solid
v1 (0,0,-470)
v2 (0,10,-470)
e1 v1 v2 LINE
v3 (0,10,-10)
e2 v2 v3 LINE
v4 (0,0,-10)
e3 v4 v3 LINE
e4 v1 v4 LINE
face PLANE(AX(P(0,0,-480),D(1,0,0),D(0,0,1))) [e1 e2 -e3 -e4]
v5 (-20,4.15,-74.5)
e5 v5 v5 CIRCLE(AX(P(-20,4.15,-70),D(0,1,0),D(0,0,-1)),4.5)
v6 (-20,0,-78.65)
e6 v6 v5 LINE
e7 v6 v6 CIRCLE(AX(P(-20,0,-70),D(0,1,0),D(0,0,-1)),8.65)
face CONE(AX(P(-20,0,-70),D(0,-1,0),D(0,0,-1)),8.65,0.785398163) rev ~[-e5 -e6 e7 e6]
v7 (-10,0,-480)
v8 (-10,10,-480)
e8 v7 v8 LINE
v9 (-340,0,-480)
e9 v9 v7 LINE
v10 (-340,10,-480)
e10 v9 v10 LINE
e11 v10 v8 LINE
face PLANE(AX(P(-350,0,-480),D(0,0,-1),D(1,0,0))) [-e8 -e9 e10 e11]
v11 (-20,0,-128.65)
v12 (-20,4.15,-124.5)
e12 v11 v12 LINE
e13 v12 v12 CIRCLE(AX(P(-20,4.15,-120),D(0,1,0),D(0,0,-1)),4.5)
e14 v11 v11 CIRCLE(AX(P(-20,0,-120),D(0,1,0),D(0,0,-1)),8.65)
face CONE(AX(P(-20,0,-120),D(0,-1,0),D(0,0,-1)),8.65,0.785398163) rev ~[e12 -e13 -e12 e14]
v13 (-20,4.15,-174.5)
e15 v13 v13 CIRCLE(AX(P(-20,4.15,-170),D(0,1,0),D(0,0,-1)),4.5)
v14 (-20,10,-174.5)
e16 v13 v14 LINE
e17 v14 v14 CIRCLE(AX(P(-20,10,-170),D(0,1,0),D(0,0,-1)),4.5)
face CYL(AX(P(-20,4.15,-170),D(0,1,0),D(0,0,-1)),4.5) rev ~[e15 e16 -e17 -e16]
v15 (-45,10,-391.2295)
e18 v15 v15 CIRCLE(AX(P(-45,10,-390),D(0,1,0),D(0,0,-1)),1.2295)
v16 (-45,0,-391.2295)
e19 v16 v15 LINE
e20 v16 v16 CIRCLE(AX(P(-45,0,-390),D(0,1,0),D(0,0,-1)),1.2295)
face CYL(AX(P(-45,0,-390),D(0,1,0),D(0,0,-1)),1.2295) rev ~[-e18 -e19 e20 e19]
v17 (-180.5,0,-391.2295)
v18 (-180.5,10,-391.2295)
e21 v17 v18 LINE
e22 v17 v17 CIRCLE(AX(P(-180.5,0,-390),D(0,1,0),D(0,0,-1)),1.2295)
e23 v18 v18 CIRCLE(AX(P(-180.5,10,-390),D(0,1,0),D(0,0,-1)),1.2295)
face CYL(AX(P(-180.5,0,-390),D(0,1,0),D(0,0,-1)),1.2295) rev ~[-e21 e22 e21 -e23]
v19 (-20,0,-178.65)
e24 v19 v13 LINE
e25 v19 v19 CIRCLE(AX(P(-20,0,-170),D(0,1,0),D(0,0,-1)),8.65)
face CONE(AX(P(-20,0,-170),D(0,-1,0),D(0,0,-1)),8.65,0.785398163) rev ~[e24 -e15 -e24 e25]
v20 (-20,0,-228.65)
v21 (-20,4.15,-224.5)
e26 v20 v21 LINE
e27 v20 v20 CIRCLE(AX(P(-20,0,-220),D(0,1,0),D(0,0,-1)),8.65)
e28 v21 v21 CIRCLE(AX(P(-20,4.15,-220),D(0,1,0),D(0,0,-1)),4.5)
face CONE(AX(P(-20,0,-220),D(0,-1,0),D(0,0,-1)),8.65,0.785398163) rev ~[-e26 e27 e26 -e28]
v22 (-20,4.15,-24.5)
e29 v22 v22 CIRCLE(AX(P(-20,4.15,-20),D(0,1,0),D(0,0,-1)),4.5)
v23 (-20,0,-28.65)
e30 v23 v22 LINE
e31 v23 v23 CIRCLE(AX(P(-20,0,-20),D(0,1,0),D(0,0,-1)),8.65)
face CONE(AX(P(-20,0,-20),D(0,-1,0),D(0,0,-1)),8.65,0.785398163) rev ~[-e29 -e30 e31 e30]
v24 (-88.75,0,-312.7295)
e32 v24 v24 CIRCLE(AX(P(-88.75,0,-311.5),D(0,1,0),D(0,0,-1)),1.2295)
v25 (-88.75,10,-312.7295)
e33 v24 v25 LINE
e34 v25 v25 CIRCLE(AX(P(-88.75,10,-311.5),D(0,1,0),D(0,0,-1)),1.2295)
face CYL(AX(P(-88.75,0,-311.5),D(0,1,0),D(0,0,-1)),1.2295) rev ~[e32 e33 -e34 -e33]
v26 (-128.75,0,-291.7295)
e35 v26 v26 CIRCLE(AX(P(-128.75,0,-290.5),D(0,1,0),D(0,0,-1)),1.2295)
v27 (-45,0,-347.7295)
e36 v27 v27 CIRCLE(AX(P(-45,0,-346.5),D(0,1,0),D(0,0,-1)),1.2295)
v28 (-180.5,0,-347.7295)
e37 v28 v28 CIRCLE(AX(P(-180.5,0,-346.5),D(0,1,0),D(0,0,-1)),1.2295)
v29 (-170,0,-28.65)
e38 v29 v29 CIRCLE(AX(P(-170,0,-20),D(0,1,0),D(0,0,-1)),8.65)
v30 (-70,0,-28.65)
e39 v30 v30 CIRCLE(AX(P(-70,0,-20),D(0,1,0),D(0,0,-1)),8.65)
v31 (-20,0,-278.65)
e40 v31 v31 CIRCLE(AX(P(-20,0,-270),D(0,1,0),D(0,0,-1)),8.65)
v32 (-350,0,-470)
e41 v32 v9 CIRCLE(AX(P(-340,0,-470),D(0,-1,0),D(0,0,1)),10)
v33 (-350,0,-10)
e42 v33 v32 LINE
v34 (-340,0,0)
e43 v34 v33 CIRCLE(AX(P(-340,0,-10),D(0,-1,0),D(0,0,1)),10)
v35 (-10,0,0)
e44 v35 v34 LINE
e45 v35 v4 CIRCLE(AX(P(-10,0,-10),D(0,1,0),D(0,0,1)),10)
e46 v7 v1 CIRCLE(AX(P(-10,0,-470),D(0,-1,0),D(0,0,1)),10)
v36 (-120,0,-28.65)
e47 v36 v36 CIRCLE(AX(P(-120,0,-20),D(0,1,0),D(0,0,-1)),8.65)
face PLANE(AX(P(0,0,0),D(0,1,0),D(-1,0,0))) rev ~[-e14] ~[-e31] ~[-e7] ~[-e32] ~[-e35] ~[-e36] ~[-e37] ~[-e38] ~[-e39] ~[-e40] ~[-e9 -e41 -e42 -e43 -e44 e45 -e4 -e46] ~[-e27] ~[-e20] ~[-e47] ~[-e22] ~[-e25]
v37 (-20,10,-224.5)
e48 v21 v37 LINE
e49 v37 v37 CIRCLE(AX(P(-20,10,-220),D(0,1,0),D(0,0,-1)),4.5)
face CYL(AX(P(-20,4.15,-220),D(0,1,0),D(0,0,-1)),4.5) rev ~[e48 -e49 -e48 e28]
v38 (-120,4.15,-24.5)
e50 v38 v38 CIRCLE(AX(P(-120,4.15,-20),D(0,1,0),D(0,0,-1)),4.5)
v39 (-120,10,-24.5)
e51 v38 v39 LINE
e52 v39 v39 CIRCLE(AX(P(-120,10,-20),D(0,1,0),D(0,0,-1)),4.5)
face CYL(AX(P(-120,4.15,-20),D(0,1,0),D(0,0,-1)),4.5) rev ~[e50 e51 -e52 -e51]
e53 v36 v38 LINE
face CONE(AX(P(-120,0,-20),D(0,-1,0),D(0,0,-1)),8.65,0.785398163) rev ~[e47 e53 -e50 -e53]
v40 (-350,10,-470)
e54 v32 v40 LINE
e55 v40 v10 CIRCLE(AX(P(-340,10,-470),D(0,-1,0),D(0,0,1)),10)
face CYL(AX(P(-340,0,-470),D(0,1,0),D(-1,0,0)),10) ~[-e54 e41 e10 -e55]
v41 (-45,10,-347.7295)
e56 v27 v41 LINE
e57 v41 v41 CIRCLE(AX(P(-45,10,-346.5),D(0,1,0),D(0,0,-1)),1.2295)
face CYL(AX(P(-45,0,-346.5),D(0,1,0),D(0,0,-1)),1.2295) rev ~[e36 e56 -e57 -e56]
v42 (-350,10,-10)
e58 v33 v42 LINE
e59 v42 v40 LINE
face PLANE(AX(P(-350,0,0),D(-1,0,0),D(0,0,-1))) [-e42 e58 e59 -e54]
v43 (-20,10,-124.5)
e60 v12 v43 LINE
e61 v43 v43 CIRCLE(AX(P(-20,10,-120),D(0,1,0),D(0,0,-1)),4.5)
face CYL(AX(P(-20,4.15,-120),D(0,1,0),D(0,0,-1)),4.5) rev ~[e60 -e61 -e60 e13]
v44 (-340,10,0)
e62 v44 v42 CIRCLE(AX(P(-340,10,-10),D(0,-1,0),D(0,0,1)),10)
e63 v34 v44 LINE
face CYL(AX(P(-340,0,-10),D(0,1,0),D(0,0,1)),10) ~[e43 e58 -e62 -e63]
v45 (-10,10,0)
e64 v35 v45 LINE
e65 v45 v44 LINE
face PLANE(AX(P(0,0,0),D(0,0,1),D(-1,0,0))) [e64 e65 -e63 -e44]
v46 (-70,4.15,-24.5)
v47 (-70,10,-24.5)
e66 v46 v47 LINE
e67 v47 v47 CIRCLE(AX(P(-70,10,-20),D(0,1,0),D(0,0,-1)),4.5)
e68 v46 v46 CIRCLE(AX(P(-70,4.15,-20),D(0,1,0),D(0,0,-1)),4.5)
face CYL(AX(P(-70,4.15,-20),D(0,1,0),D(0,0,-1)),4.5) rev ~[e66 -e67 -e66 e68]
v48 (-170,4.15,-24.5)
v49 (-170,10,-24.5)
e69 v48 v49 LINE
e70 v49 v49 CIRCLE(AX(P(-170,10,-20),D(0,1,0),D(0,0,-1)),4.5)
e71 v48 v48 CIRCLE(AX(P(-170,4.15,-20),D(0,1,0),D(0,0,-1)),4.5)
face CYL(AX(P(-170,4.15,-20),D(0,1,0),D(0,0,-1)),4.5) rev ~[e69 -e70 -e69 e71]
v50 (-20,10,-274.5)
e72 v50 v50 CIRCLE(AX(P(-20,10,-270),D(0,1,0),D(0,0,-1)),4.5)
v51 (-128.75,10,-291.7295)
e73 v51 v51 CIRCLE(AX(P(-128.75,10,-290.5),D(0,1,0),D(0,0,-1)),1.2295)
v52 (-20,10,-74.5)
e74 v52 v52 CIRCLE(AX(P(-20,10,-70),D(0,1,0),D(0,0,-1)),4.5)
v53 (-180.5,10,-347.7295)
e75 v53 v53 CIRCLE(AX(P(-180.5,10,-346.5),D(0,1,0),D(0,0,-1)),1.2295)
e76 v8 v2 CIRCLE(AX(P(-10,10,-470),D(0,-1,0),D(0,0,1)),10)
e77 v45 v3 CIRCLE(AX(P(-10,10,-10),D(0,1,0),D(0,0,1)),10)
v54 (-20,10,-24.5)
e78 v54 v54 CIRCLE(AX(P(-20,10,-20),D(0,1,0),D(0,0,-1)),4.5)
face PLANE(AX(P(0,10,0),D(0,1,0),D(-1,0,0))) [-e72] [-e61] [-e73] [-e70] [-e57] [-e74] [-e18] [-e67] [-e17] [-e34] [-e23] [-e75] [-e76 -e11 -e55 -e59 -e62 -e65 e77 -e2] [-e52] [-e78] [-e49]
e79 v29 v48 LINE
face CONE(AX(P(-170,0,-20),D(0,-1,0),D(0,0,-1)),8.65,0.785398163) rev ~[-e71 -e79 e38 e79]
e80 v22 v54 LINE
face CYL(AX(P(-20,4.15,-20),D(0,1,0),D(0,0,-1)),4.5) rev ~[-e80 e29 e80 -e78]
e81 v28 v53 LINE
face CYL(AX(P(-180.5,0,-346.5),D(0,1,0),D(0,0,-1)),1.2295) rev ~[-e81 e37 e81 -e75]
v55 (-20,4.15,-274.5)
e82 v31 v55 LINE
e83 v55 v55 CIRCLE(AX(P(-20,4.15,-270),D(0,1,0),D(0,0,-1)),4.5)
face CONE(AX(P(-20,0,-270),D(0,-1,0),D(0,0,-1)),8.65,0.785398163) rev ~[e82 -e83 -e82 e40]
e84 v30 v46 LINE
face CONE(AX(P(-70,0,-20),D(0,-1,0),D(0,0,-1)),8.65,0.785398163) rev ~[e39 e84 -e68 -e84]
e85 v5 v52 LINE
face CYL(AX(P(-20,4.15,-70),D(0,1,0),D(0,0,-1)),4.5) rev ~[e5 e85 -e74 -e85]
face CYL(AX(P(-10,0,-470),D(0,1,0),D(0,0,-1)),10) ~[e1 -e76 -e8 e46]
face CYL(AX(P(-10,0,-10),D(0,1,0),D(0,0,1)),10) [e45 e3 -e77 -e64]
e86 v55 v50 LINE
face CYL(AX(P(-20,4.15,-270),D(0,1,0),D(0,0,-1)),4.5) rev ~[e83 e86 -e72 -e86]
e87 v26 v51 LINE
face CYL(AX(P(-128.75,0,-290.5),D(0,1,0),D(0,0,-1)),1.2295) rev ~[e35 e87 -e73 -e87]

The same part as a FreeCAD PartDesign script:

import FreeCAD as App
import Part
import Sketcher


def edges_at(feature, points):
    """Names of the edges that pass closest to the given points."""
    edges = feature.Shape.Edges
    near = lambda p: min(range(len(edges)), key=lambda i: edges[i].distToShape(Part.Vertex(*p))[0])
    return sorted({f"Edge{near(p) + 1}" for p in points})


def add_polygon(sketch, points):
    """Adds a closed chain of lines whose ends are joined by coincident constraints."""
    first, n = sketch.GeometryCount, len(points)
    for a, b in zip(points, points[1:] + points[:1]):
        sketch.addGeometry(Part.LineSegment(App.Vector(*a, 0), App.Vector(*b, 0)), False)
    for i in range(n):
        sketch.addConstraint(Sketcher.Constraint("Coincident", first + i, 2, first + (i + 1) % n, 1))

doc = App.newDocument("Part")
body = doc.addObject("PartDesign::Body", "Body")

# Sketch on XZ plane
sketch1 = body.newObject("Sketcher::SketchObject", "Sketch")
sketch1.AttachmentSupport = (doc.getObject("XZ_Plane"), [""])
sketch1.MapMode = "FlatFace"
add_polygon(sketch1, [(-350, 0), (0, 0), (0, -480), (-350, -480)])  # lines 0-3
sketch1.addConstraint(Sketcher.Constraint("Horizontal", 0))
sketch1.addConstraint(Sketcher.Constraint("Vertical", 1))
sketch1.addConstraint(Sketcher.Constraint("Horizontal", 2))
sketch1.addConstraint(Sketcher.Constraint("Vertical", 3))
sketch1.addConstraint(Sketcher.Constraint("Coincident", 0, 2, -1, 1))
sketch1.addConstraint(Sketcher.Constraint("DistanceX", 0, 1, 0, 2, 350.0))
sketch1.addConstraint(Sketcher.Constraint("DistanceY", 1, 2, 1, 1, 480.0))
pad1 = body.newObject("PartDesign::Pad", "Pad")
pad1.Profile = sketch1
pad1.Length = 10
pad1.Reversed = True
doc.recompute()

fillet = body.newObject("PartDesign::Fillet", "Fillet")
fillet.Base = (pad1, edges_at(pad1, [
    (-350, 5, 0),
    (0, 5, 0),
    (0, 5, -480),
    (-350, 5, -480),
]))
fillet.Radius = 10

# Sketch on XZ plane
sketch2 = body.newObject("Sketcher::SketchObject", "Sketch001")
sketch2.AttachmentSupport = (doc.getObject("XZ_Plane"), [""])
sketch2.MapMode = "FlatFace"
sketch2.addGeometry(Part.Circle(App.Vector(-170, -20, 0), App.Vector(0, 0, 1), 4.5), False)
sketch2.addGeometry(Part.Circle(App.Vector(-120, -20, 0), App.Vector(0, 0, 1), 4.5), False)
sketch2.addGeometry(Part.Circle(App.Vector(-70, -20, 0), App.Vector(0, 0, 1), 4.5), False)
sketch2.addGeometry(Part.Circle(App.Vector(-20, -20, 0), App.Vector(0, 0, 1), 4.5), False)
sketch2.addGeometry(Part.Circle(App.Vector(-20, -70, 0), App.Vector(0, 0, 1), 4.5), False)
sketch2.addGeometry(Part.Circle(App.Vector(-20, -120, 0), App.Vector(0, 0, 1), 4.5), False)
sketch2.addGeometry(Part.Circle(App.Vector(-20, -170, 0), App.Vector(0, 0, 1), 4.5), False)
sketch2.addGeometry(Part.Circle(App.Vector(-20, -220, 0), App.Vector(0, 0, 1), 4.5), False)
sketch2.addGeometry(Part.Circle(App.Vector(-20, -270, 0), App.Vector(0, 0, 1), 4.5), False)
sketch2.addConstraint(Sketcher.Constraint("Equal", 0, 1))
sketch2.addConstraint(Sketcher.Constraint("Equal", 1, 2))
sketch2.addConstraint(Sketcher.Constraint("Equal", 2, 3))
sketch2.addConstraint(Sketcher.Constraint("Equal", 3, 4))
sketch2.addConstraint(Sketcher.Constraint("Equal", 4, 5))
sketch2.addConstraint(Sketcher.Constraint("Equal", 5, 6))
sketch2.addConstraint(Sketcher.Constraint("Equal", 6, 7))
sketch2.addConstraint(Sketcher.Constraint("Equal", 7, 8))
sketch2.addConstraint(Sketcher.Constraint("Horizontal", 0, 3, 1, 3))
sketch2.addConstraint(Sketcher.Constraint("Horizontal", 1, 3, 2, 3))
sketch2.addConstraint(Sketcher.Constraint("Horizontal", 2, 3, 3, 3))
sketch2.addConstraint(Sketcher.Constraint("Vertical", 3, 3, 4, 3))
sketch2.addConstraint(Sketcher.Constraint("Vertical", 4, 3, 5, 3))
sketch2.addConstraint(Sketcher.Constraint("Vertical", 5, 3, 6, 3))
sketch2.addConstraint(Sketcher.Constraint("Vertical", 6, 3, 7, 3))
sketch2.addConstraint(Sketcher.Constraint("Vertical", 7, 3, 8, 3))
sketch2.addConstraint(Sketcher.Constraint("Diameter", 0, 9.0))
sketch2.addConstraint(Sketcher.Constraint("DistanceX", 0, 3, -1, 1, 170.0))
sketch2.addConstraint(Sketcher.Constraint("DistanceY", 0, 3, -1, 1, 20.0))
sketch2.addConstraint(Sketcher.Constraint("DistanceX", 1, 3, -1, 1, 120.0))
sketch2.addConstraint(Sketcher.Constraint("DistanceX", 2, 3, -1, 1, 70.0))
sketch2.addConstraint(Sketcher.Constraint("DistanceX", 3, 3, -1, 1, 20.0))
sketch2.addConstraint(Sketcher.Constraint("DistanceY", 4, 3, -1, 1, 70.0))
sketch2.addConstraint(Sketcher.Constraint("DistanceY", 5, 3, -1, 1, 120.0))
sketch2.addConstraint(Sketcher.Constraint("DistanceY", 6, 3, -1, 1, 170.0))
sketch2.addConstraint(Sketcher.Constraint("DistanceY", 7, 3, -1, 1, 220.0))
sketch2.addConstraint(Sketcher.Constraint("DistanceY", 8, 3, -1, 1, 270.0))
doc.recompute()
hole = body.newObject("PartDesign::Hole", "Hole")
hole.Profile = sketch2
hole.ThreadType = "None"
hole.Diameter = 9
hole.DepthType = "ThroughAll"
hole.HoleCutType = "Countersink"
hole.HoleCutDiameter = 17.3
hole.HoleCutCountersinkAngle = 90

# Sketch on XZ plane
sketch3 = body.newObject("Sketcher::SketchObject", "Sketch002")
sketch3.AttachmentSupport = (doc.getObject("XZ_Plane"), [""])
sketch3.MapMode = "FlatFace"
sketch3.addGeometry(Part.Circle(App.Vector(-128.8, -290.5, 0), App.Vector(0, 0, 1), 1.2), False)
sketch3.addGeometry(Part.Circle(App.Vector(-88.8, -311.5, 0), App.Vector(0, 0, 1), 1.2), False)
sketch3.addGeometry(Part.Circle(App.Vector(-180.5, -346.5, 0), App.Vector(0, 0, 1), 1.2), False)
sketch3.addGeometry(Part.Circle(App.Vector(-180.5, -390, 0), App.Vector(0, 0, 1), 1.2), False)
sketch3.addGeometry(Part.Circle(App.Vector(-45, -346.5, 0), App.Vector(0, 0, 1), 1.2), False)
sketch3.addGeometry(Part.Circle(App.Vector(-45, -390, 0), App.Vector(0, 0, 1), 1.2), False)
sketch3.addConstraint(Sketcher.Constraint("Equal", 0, 1))
sketch3.addConstraint(Sketcher.Constraint("Equal", 1, 2))
sketch3.addConstraint(Sketcher.Constraint("Equal", 2, 3))
sketch3.addConstraint(Sketcher.Constraint("Equal", 3, 4))
sketch3.addConstraint(Sketcher.Constraint("Equal", 4, 5))
sketch3.addConstraint(Sketcher.Constraint("Horizontal", 2, 3, 4, 3))
sketch3.addConstraint(Sketcher.Constraint("Horizontal", 3, 3, 5, 3))
sketch3.addConstraint(Sketcher.Constraint("Vertical", 2, 3, 3, 3))
sketch3.addConstraint(Sketcher.Constraint("Vertical", 4, 3, 5, 3))
sketch3.addConstraint(Sketcher.Constraint("Diameter", 0, 2.459))
sketch3.addConstraint(Sketcher.Constraint("DistanceY", 3, 3, -1, 1, 390.0))
sketch3.addConstraint(Sketcher.Constraint("DistanceX", 4, 3, -1, 1, 45.0))
sketch3.addConstraint(Sketcher.Constraint("DistanceX", 0, 3, 1, 3, 40.0))
sketch3.addConstraint(Sketcher.Constraint("DistanceY", 1, 3, 0, 3, 21.0))
sketch3.addConstraint(Sketcher.Constraint("DistanceY", 2, 3, 0, 3, 56.0))
sketch3.addConstraint(Sketcher.Constraint("DistanceY", 0, 3, -1, 1, 290.5))
sketch3.addConstraint(Sketcher.Constraint("DistanceX", 2, 3, -1, 1, 180.5))
sketch3.addConstraint(Sketcher.Constraint("DistanceX", 0, 3, -1, 1, 128.75))
doc.recompute()
hole2 = body.newObject("PartDesign::Hole", "Hole001")
hole2.Profile = sketch3
hole2.ThreadType = "None"
hole2.Diameter = 2.459
hole2.DepthType = "ThroughAll"

doc.recompute()
